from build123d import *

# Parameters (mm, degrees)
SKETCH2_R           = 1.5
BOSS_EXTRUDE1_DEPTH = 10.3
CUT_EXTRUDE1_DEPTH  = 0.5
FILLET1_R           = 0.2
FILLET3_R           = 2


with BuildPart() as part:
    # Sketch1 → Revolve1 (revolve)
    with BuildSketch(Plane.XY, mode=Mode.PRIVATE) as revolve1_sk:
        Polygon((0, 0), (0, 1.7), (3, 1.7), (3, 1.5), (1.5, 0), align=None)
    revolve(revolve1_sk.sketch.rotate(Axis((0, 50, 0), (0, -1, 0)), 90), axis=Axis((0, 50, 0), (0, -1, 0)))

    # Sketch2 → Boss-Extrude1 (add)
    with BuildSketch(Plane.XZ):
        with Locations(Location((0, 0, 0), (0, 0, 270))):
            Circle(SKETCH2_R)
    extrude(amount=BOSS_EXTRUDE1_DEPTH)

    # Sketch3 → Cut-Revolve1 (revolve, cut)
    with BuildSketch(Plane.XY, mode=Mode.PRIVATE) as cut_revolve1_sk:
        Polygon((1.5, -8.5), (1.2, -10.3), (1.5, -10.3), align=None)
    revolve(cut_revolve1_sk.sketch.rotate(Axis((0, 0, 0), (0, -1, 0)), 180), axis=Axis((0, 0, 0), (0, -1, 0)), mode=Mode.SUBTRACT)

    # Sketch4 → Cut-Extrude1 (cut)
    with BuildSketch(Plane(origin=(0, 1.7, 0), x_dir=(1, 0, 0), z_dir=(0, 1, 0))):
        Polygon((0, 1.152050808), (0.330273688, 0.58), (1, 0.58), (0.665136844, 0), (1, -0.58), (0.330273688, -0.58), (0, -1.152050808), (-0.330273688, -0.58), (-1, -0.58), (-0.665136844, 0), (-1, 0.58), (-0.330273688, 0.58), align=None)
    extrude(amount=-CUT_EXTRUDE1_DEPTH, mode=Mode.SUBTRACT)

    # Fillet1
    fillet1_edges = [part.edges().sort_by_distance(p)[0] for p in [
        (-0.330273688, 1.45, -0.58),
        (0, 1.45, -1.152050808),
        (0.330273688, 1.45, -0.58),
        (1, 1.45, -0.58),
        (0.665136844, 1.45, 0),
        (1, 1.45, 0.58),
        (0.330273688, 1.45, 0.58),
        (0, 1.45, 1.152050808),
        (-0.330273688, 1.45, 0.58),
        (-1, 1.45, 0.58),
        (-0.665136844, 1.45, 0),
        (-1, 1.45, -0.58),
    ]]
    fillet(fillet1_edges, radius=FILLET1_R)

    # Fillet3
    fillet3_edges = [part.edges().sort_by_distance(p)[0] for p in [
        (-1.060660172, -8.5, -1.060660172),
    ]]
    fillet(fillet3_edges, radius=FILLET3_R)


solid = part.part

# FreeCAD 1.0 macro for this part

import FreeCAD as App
import Part
import Sketcher

V = App.Vector
Q = App.Units.Quantity


def edges_at(feature, points):
    """Names of the edges that pass closest to the given points."""
    edges = feature.Shape.Edges
    near = lambda p: min(range(len(edges)), key=lambda i: edges[i].distToShape(Part.Vertex(*p))[0])
    return sorted({f"Edge{near(p) + 1}" for p in points})

doc = App.newDocument("Part")
body = doc.addObject("PartDesign::Body", "Body")

# Sketch on XY plane
sketch1 = body.newObject("Sketcher::SketchObject", "Sketch")
sketch1.AttachmentSupport = (doc.getObject("XY_Plane"), [""])
sketch1.MapMode = "FlatFace"
sketch1.addGeometry([
    Part.LineSegment(V(0, 1.7, 0), V(0, 0, 0)),  # 0
    Part.LineSegment(V(0, 0, 0), V(1.5, 0, 0)),  # 1
    Part.LineSegment(V(1.5, 0, 0), V(3, 1.5, 0)),  # 2
    Part.LineSegment(V(3, 1.5, 0), V(3, 1.7, 0)),  # 3
    Part.LineSegment(V(3, 1.7, 0), V(0, 1.7, 0)),  # 4
], False)
sketch1.addConstraint([
    Sketcher.Constraint("Coincident", 0, 2, 1, 1),
    Sketcher.Constraint("Coincident", 1, 2, 2, 1),
    Sketcher.Constraint("Coincident", 2, 2, 3, 1),
    Sketcher.Constraint("Coincident", 3, 2, 4, 1),
    Sketcher.Constraint("Coincident", 4, 2, 0, 1),
    Sketcher.Constraint("Vertical", 0),
    Sketcher.Constraint("Horizontal", 1),
    Sketcher.Constraint("Vertical", 3),
    Sketcher.Constraint("Horizontal", 4),
    Sketcher.Constraint("Coincident", 0, 2, -1, 1),
    Sketcher.Constraint("DistanceX", 4, 2, 4, 1, Q("3 mm")),
    Sketcher.Constraint("Angle", 2, Q("45 deg")),
    Sketcher.Constraint("DistanceX", 1, 1, 1, 2, Q("1.5 mm")),
    Sketcher.Constraint("DistanceY", 0, 2, 0, 1, Q("1.7 mm")),
])
revolution = body.newObject("PartDesign::Revolution", "Revolution")
revolution.Profile = sketch1
revolution.ReferenceAxis = (sketch1, ["V_Axis"])
revolution.Angle = 360

# Sketch on XZ plane
sketch2 = body.newObject("Sketcher::SketchObject", "Sketch001")
sketch2.AttachmentSupport = (doc.getObject("XZ_Plane"), [""])
sketch2.MapMode = "FlatFace"
sketch2.addGeometry(Part.Circle(V(0, 0, 0), V(0, 0, 1), 1.5), False)
sketch2.addConstraint([
    Sketcher.Constraint("Coincident", 0, 3, -1, 1),
    Sketcher.Constraint("Diameter", 0, Q("3 mm")),
])
pad1 = body.newObject("PartDesign::Pad", "Pad")
pad1.Profile = sketch2
pad1.Length = 10.3

# Sketch on XY plane
sketch3 = body.newObject("Sketcher::SketchObject", "Sketch002")
sketch3.AttachmentSupport = (doc.getObject("XY_Plane"), [""])
sketch3.MapMode = "FlatFace"
sketch3.addGeometry([
    Part.LineSegment(V(1.5, -8.5, 0), V(1.2, -10.3, 0)),
    Part.LineSegment(V(1.2, -10.3, 0), V(1.5, -10.3, 0)),
    Part.LineSegment(V(1.5, -10.3, 0), V(1.5, -8.5, 0)),
], False)
sketch3.addConstraint([
    Sketcher.Constraint("Coincident", 0, 2, 1, 1),
    Sketcher.Constraint("Coincident", 1, 2, 2, 1),
    Sketcher.Constraint("Coincident", 2, 2, 0, 1),
    Sketcher.Constraint("Horizontal", 1),
    Sketcher.Constraint("Vertical", 2),
    Sketcher.Constraint("DistanceX", 1, 1, 1, 2, Q("0.3 mm")),
    Sketcher.Constraint("DistanceY", 2, 1, 2, 2, Q("1.8 mm")),
    Sketcher.Constraint("DistanceX", -1, 1, 0, 2, Q("1.2 mm")),
    Sketcher.Constraint("DistanceY", 0, 2, -1, 1, Q("10.3 mm")),
])
groove = body.newObject("PartDesign::Groove", "Groove")
groove.Profile = sketch3
groove.ReferenceAxis = (sketch3, ["V_Axis"])
groove.Angle = 360

# Sketch on XZ plane
sketch4 = body.newObject("Sketcher::SketchObject", "Sketch003")
sketch4.AttachmentSupport = (doc.getObject("XZ_Plane"), [""])
sketch4.MapMode = "FlatFace"
sketch4.AttachmentOffset = App.Placement(V(0, 0, -1.7), App.Rotation())
sketch4.addGeometry([
    Part.LineSegment(V(0.330274, -0.58, 0), V(0, -1.152051, 0)),  # 0
    Part.LineSegment(V(0, -1.152051, 0), V(-0.330274, -0.58, 0)),  # 1
    Part.LineSegment(V(-0.330274, -0.58, 0), V(-1, -0.58, 0)),  # 2
    Part.LineSegment(V(-1, -0.58, 0), V(-0.665137, 0, 0)),  # 3
    Part.LineSegment(V(-0.665137, 0, 0), V(-1, 0.58, 0)),  # 4
    Part.LineSegment(V(-1, 0.58, 0), V(-0.330274, 0.58, 0)),  # 5
    Part.LineSegment(V(-0.330274, 0.58, 0), V(0, 1.152051, 0)),  # 6
    Part.LineSegment(V(0, 1.152051, 0), V(0.330274, 0.58, 0)),  # 7
    Part.LineSegment(V(0.330274, 0.58, 0), V(1, 0.58, 0)),  # 8
    Part.LineSegment(V(1, 0.58, 0), V(0.665137, 0, 0)),  # 9
    Part.LineSegment(V(0.665137, 0, 0), V(1, -0.58, 0)),  # 10
    Part.LineSegment(V(1, -0.58, 0), V(0.330274, -0.58, 0)),  # 11
], False)
sketch4.addConstraint([
    Sketcher.Constraint("Coincident", 0, 2, 1, 1),
    Sketcher.Constraint("Coincident", 1, 2, 2, 1),
    Sketcher.Constraint("Coincident", 2, 2, 3, 1),
    Sketcher.Constraint("Coincident", 3, 2, 4, 1),
    Sketcher.Constraint("Coincident", 4, 2, 5, 1),
    Sketcher.Constraint("Coincident", 5, 2, 6, 1),
    Sketcher.Constraint("Coincident", 6, 2, 7, 1),
    Sketcher.Constraint("Coincident", 7, 2, 8, 1),
    Sketcher.Constraint("Coincident", 8, 2, 9, 1),
    Sketcher.Constraint("Coincident", 9, 2, 10, 1),
    Sketcher.Constraint("Coincident", 10, 2, 11, 1),
    Sketcher.Constraint("Coincident", 11, 2, 0, 1),
    Sketcher.Constraint("Horizontal", 2),
    Sketcher.Constraint("Horizontal", 5),
    Sketcher.Constraint("Horizontal", 8),
    Sketcher.Constraint("Horizontal", 11),
    Sketcher.Constraint("Symmetric", 0, 2, 6, 2, -1, 1),
    Sketcher.Constraint("Symmetric", 1, 2, 7, 2, -1, 1),
    Sketcher.Constraint("Symmetric", 3, 2, 9, 2, -1, 1),
    Sketcher.Constraint("Symmetric", 4, 2, 10, 2, -1, 1),
    Sketcher.Constraint("Symmetric", 5, 2, 7, 2, -2),
    Sketcher.Constraint("PointOnObject", 0, 2, -2),
    Sketcher.Constraint("PointOnObject", 3, 2, -1),
    Sketcher.Constraint("Parallel", 0, 3),
    Sketcher.Constraint("Parallel", 1, 4),
    Sketcher.Constraint("Parallel", 3, 6),
    Sketcher.Constraint("Parallel", 6, 9),
    Sketcher.Constraint("Angle", 0, Q("-120 deg")),
    Sketcher.Constraint("DistanceX", 2, 2, -1, 1, Q("1 mm")),
    Sketcher.Constraint("DistanceY", 1, 2, -1, 1, Q("0.58 mm")),
    Sketcher.Constraint("DistanceX", 2, 2, 2, 1, Q("0.669726 mm")),
])
pocket1 = body.newObject("PartDesign::Pocket", "Pocket")
pocket1.Profile = sketch4
pocket1.Length = 0.5
pocket1.Reversed = True
doc.recompute()

fillet = body.newObject("PartDesign::Fillet", "Fillet")
fillet.Base = (pocket1, edges_at(pocket1, [
    (-0.33, 1.45, -0.58),
    (0, 1.45, -1.152),
    (0.33, 1.45, -0.58),
    (1, 1.45, -0.58),
    (0.665, 1.45, 0),
    (1, 1.45, 0.58),
    (0.33, 1.45, 0.58),
    (0, 1.45, 1.152),
    (-0.33, 1.45, 0.58),
    (-1, 1.45, 0.58),
    (-0.665, 1.45, 0),
    (-1, 1.45, -0.58),
]))
fillet.Radius = 0.2
doc.recompute()

fillet2 = body.newObject("PartDesign::Fillet", "Fillet001")
fillet2.Base = (fillet, edges_at(fillet, [(-1.061, -8.5, -1.061)]))
fillet2.Radius = 2

doc.recompute()
